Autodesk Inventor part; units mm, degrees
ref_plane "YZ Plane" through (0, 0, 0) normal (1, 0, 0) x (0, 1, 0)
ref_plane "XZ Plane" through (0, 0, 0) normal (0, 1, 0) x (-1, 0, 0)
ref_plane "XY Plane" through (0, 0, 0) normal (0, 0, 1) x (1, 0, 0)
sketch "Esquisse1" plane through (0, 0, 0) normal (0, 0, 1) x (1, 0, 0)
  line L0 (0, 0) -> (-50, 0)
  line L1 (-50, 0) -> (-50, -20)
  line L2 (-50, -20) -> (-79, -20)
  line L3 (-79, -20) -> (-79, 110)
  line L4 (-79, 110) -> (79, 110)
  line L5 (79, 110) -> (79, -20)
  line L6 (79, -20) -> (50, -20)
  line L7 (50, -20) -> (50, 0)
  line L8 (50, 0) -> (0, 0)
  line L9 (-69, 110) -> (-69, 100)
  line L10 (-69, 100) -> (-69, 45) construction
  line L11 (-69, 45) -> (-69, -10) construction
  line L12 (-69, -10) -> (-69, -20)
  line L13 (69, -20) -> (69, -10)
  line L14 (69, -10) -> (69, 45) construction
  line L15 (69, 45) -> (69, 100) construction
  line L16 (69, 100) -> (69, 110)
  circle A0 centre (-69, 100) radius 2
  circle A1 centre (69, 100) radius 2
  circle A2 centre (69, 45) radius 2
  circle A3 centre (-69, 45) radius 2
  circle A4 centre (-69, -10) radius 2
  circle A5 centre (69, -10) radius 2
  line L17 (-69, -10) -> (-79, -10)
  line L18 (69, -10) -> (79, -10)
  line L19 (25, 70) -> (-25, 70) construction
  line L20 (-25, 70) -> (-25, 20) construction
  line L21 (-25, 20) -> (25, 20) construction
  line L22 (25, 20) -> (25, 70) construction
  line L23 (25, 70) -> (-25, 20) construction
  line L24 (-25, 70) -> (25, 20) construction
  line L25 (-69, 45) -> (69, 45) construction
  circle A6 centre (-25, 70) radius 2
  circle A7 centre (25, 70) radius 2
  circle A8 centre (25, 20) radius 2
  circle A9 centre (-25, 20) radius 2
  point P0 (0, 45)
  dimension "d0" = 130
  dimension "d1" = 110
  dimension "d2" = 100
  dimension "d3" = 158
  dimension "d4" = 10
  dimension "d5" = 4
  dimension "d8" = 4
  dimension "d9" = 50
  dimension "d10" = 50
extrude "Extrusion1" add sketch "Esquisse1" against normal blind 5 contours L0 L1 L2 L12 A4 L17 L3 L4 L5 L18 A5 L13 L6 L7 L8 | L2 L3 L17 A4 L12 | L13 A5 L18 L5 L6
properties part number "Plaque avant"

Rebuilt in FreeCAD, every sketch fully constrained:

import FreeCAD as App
import Part
import Sketcher

V = App.Vector
Q = App.Units.Quantity


def add_polygon(sketch, points):
    """Adds a closed chain of lines whose ends are joined by coincident constraints."""
    first, n = sketch.GeometryCount, len(points)
    for a, b in zip(points, points[1:] + points[:1]):
        sketch.addGeometry(Part.LineSegment(App.Vector(*a, 0), App.Vector(*b, 0)), False)
    for i in range(n):
        sketch.addConstraint(Sketcher.Constraint("Coincident", first + i, 2, first + (i + 1) % n, 1))

doc = App.newDocument("Part")
body = doc.addObject("PartDesign::Body", "Body")

# Sketch on XY plane
sketch1 = body.newObject("Sketcher::SketchObject", "Sketch")
sketch1.AttachmentSupport = (doc.getObject("XY_Plane"), [""])
sketch1.MapMode = "FlatFace"
add_polygon(sketch1, [(-50, 0), (50, 0), (50, -20), (79, -20), (79, 110), (69, 110), (-69, 110), (-79, 110), (-79, -20), (-50, -20)])  # lines 0-9
sketch1.addGeometry(Part.Circle(V(-69, -10, 0), V(0, 0, 1), 2), False)  # 10
sketch1.addGeometry(Part.Circle(V(69, -10, 0), V(0, 0, 1), 2), False)  # 11
sketch1.addGeometry(Part.Circle(V(-25, 20, 0), V(0, 0, 1), 2), False)  # 12
sketch1.addGeometry(Part.Circle(V(25, 20, 0), V(0, 0, 1), 2), False)  # 13
sketch1.addGeometry(Part.Circle(V(-69, 45, 0), V(0, 0, 1), 2), False)  # 14
sketch1.addGeometry(Part.Circle(V(-25, 70, 0), V(0, 0, 1), 2), False)  # 15
sketch1.addGeometry(Part.Circle(V(-69, 100, 0), V(0, 0, 1), 2), False)  # 16
sketch1.addGeometry(Part.Circle(V(25, 70, 0), V(0, 0, 1), 2), False)  # 17
sketch1.addGeometry(Part.Circle(V(69, 45, 0), V(0, 0, 1), 2), False)  # 18
sketch1.addGeometry(Part.Circle(V(69, 100, 0), V(0, 0, 1), 2), False)  # 19
sketch1.addConstraint([
    Sketcher.Constraint("Horizontal", 0),
    Sketcher.Constraint("Vertical", 1),
    Sketcher.Constraint("Horizontal", 2),
    Sketcher.Constraint("Vertical", 3),
    Sketcher.Constraint("Horizontal", 4),
    Sketcher.Constraint("Horizontal", 5),
    Sketcher.Constraint("Horizontal", 6),
    Sketcher.Constraint("Vertical", 7),
    Sketcher.Constraint("Horizontal", 8),
    Sketcher.Constraint("Vertical", 9),
    Sketcher.Constraint("Equal", 10, 11),
    Sketcher.Constraint("Equal", 11, 12),
    Sketcher.Constraint("Equal", 12, 13),
    Sketcher.Constraint("Equal", 13, 14),
    Sketcher.Constraint("Equal", 14, 15),
    Sketcher.Constraint("Equal", 15, 16),
    Sketcher.Constraint("Equal", 16, 17),
    Sketcher.Constraint("Equal", 17, 18),
    Sketcher.Constraint("Equal", 18, 19),
    Sketcher.Constraint("Symmetric", 0, 2, 9, 2, -1, 1),
    Sketcher.Constraint("Symmetric", 10, 3, 11, 3, -2),
    Sketcher.Constraint("Symmetric", 12, 3, 13, 3, -2),
    Sketcher.Constraint("Symmetric", 15, 3, 17, 3, -2),
    Sketcher.Constraint("Symmetric", 14, 3, 18, 3, -2),
    Sketcher.Constraint("Symmetric", 16, 3, 19, 3, -2),
    Sketcher.Constraint("Symmetric", 2, 2, 7, 2, -2),
    Sketcher.Constraint("Vertical", 10, 3, 14, 3),
    Sketcher.Constraint("Vertical", 12, 3, 15, 3),
    Sketcher.Constraint("Vertical", 14, 3, 16, 3),
    Sketcher.Constraint("Vertical", 19, 3, 4, 2),
    Sketcher.Constraint("Vertical", 16, 3, 5, 2),
    Sketcher.Constraint("Diameter", 10, Q("4 mm")),
    Sketcher.Constraint("DistanceX", 0, 1, 0, 2, Q("100 mm")),
    Sketcher.Constraint("DistanceX", 4, 2, 4, 1, Q("10 mm")),
    Sketcher.Constraint("DistanceY", 3, 1, 3, 2, Q("130 mm")),
    Sketcher.Constraint("DistanceY", 10, 3, -1, 1, Q("10 mm")),
    Sketcher.Constraint("DistanceY", -1, 1, 16, 3, Q("100 mm")),
    Sketcher.Constraint("DistanceY", -1, 1, 3, 2, Q("110 mm")),
    Sketcher.Constraint("DistanceX", 12, 3, 13, 3, Q("50 mm")),
    Sketcher.Constraint("DistanceY", 12, 3, 15, 3, Q("50 mm")),
    Sketcher.Constraint("DistanceX", 2, 1, 2, 2, Q("29 mm")),
    Sketcher.Constraint("DistanceY", -1, 1, 12, 3, Q("20 mm")),
    Sketcher.Constraint("DistanceY", -1, 1, 14, 3, Q("45 mm")),
])
pad1 = body.newObject("PartDesign::Pad", "Pad")
pad1.Profile = sketch1
pad1.Length = 5
pad1.Reversed = True

doc.recompute()
